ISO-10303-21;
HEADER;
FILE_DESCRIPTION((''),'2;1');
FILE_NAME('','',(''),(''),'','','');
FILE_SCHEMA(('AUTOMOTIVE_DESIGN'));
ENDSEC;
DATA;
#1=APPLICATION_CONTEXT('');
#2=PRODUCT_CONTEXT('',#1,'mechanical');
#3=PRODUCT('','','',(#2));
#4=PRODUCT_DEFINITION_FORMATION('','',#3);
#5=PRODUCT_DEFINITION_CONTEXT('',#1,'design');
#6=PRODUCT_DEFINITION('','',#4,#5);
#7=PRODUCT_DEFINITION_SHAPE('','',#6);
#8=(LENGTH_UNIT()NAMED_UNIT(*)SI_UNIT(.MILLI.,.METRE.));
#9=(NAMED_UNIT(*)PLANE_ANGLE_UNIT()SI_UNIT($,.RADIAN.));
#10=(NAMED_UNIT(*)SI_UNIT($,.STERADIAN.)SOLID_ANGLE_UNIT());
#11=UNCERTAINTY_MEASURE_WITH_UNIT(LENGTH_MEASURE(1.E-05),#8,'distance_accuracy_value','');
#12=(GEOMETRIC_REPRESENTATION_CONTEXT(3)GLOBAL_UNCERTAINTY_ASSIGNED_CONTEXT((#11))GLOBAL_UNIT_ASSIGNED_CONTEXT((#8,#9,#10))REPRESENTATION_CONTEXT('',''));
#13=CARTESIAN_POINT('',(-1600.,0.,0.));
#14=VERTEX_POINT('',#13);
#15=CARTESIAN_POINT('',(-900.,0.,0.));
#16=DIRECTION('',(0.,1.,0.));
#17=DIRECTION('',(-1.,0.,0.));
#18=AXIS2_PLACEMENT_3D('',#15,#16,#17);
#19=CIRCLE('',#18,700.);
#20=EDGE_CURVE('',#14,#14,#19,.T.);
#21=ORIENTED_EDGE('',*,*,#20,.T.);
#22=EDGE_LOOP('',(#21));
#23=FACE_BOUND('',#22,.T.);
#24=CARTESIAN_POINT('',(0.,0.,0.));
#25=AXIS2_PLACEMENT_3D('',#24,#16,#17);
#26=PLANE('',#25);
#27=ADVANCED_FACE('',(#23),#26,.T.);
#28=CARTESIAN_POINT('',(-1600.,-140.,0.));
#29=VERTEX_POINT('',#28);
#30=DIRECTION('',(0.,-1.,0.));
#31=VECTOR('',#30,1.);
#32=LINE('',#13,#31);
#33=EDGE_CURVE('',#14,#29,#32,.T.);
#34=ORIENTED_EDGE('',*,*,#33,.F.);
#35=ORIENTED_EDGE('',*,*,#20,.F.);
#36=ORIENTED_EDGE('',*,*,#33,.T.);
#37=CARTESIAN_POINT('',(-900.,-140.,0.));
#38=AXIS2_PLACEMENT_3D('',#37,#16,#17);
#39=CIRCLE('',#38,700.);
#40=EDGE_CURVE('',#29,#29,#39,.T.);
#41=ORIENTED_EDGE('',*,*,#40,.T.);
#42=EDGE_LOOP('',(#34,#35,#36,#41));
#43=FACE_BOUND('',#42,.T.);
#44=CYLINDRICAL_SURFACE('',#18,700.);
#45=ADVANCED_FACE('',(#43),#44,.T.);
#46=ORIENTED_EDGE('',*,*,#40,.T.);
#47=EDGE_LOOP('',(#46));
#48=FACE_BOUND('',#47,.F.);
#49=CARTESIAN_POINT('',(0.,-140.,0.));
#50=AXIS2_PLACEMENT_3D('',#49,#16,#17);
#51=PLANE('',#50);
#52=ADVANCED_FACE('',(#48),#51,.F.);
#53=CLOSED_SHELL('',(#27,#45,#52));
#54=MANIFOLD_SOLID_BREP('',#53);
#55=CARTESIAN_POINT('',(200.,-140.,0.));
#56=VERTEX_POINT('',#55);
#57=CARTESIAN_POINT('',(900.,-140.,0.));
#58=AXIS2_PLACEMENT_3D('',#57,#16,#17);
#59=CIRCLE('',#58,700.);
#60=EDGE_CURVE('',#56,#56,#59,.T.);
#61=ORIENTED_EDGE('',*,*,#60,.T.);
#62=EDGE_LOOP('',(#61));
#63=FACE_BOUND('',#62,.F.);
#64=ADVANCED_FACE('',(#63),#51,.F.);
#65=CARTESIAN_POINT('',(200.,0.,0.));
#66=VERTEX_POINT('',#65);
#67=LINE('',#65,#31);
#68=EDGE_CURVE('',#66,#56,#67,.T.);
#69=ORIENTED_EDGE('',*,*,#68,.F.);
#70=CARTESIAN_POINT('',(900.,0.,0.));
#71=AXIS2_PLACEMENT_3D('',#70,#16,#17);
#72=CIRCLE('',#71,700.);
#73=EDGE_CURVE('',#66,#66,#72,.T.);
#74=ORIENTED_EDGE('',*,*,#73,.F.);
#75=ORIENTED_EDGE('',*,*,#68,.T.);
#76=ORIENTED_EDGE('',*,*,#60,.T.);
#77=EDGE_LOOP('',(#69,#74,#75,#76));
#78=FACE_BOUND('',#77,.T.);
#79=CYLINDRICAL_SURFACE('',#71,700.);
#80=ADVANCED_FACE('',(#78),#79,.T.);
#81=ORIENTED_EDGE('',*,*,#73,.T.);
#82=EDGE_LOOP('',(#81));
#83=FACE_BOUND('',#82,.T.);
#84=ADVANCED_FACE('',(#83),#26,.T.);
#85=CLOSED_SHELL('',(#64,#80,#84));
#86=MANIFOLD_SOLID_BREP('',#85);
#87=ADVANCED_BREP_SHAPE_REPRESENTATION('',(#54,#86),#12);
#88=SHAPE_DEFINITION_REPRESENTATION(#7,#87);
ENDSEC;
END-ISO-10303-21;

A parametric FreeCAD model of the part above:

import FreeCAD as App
import Part
import Sketcher
from FreeCAD import Vector

doc = App.newDocument("Part")
body = doc.addObject("PartDesign::Body", "Body")
body.AllowCompound = True

# Sketch on XZ plane
sketch1 = body.newObject("Sketcher::SketchObject", "Sketch")
sketch1.AttachmentSupport = (doc.getObject("XZ_Plane"), [""])
sketch1.MapMode = "FlatFace"
sketch1.addGeometry(Part.Circle(Vector(900, 0, 0), Vector(0, 0, 1), 700), False)
sketch1.addGeometry(Part.Circle(Vector(-900, 0, 0), Vector(0, 0, 1), 700), False)
sketch1.addConstraint(Sketcher.Constraint("Equal", 0, 1))
sketch1.addConstraint(Sketcher.Constraint("Symmetric", 0, 3, 1, 3, -1, 1))
sketch1.addConstraint(Sketcher.Constraint("PointOnObject", 0, 3, -1))
sketch1.addConstraint(Sketcher.Constraint("Diameter", 0, 1400.0))
sketch1.addConstraint(Sketcher.Constraint("DistanceX", -1, 1, 0, 3, 900.0))
pad1 = body.newObject("PartDesign::Pad", "Pad")
pad1.Profile = sketch1
pad1.Length = 140

doc.recompute()
